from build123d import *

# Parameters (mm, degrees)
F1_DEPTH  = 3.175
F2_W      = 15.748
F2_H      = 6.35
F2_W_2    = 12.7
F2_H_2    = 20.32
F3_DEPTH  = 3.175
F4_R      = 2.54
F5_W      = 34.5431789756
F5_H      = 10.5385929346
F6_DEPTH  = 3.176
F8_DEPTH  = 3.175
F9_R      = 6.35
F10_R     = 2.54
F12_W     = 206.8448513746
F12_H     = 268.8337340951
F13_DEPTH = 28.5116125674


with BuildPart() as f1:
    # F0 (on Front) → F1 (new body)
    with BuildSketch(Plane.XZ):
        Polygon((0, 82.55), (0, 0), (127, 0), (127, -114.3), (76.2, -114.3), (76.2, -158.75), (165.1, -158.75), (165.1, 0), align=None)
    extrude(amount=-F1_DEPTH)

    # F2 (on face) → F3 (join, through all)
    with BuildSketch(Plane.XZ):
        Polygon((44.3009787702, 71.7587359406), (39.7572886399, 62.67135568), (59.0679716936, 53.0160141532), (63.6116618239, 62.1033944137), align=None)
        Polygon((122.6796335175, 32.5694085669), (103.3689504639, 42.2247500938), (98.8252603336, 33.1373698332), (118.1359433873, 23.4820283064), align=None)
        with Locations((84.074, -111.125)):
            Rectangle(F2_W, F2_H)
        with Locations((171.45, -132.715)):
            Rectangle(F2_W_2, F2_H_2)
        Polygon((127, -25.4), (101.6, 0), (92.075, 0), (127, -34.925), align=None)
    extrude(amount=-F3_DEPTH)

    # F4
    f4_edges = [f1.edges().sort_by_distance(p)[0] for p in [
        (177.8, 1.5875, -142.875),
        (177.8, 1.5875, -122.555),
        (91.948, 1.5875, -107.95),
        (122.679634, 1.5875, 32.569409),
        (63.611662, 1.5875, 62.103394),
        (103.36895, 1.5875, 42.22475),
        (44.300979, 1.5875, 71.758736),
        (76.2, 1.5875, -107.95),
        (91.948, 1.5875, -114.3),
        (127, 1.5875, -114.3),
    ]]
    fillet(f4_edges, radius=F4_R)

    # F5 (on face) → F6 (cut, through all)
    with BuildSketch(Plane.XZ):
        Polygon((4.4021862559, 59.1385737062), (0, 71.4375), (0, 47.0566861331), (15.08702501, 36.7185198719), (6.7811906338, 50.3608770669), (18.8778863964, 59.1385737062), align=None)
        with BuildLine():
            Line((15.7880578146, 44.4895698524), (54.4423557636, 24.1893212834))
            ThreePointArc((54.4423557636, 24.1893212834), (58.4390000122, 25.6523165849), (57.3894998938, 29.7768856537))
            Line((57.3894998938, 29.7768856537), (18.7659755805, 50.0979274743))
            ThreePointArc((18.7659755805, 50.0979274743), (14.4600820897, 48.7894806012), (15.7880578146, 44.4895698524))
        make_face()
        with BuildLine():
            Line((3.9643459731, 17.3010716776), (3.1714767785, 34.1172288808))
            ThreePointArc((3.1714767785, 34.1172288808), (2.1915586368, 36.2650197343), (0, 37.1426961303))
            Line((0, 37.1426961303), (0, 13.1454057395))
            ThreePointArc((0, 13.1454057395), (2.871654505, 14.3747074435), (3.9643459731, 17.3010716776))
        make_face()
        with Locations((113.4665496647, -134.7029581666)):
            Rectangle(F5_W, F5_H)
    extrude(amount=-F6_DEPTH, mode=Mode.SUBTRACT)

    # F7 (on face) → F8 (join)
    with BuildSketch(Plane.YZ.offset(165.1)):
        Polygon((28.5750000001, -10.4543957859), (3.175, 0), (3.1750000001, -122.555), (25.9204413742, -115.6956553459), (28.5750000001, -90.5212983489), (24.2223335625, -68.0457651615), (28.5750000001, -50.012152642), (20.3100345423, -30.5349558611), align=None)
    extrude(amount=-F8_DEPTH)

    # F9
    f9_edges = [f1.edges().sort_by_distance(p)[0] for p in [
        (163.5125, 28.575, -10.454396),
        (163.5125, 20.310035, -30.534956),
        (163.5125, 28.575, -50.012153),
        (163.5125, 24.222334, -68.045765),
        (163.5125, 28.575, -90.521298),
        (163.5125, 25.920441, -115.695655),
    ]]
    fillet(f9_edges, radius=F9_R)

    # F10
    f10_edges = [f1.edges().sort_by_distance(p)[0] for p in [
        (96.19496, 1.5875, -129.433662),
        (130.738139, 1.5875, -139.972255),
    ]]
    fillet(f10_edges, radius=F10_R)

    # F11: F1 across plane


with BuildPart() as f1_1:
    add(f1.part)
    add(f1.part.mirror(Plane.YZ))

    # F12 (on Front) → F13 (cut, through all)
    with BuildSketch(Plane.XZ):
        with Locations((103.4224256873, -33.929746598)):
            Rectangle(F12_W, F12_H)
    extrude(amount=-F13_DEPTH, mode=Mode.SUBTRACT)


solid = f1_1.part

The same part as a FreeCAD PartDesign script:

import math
import FreeCAD as App
import Part
import Sketcher

V = App.Vector
Q = App.Units.Quantity


def edges_at(feature, points):
    """Names of the edges that pass closest to the given points."""
    edges = feature.Shape.Edges
    near = lambda p: min(range(len(edges)), key=lambda i: edges[i].distToShape(Part.Vertex(*p))[0])
    return sorted({f"Edge{near(p) + 1}" for p in points})

doc = App.newDocument("Part")
body = doc.addObject("PartDesign::Body", "Body")

# Sketch on XZ plane
sketch1 = body.newObject("Sketcher::SketchObject", "Sketch")
sketch1.AttachmentSupport = (doc.getObject("XZ_Plane"), [""])
sketch1.MapMode = "FlatFace"
sketch1.addGeometry(Part.LineSegment(V(0, 83, 0), V(0, 0, 0)), False)
sketch1.addGeometry(Part.LineSegment(V(0, 0, 0), V(127, 0, 0)), False)
sketch1.addGeometry(Part.LineSegment(V(127, 0, 0), V(127, -114, 0)), False)
sketch1.addGeometry(Part.LineSegment(V(127, -114, 0), V(76, -114, 0)), False)
sketch1.addGeometry(Part.LineSegment(V(76, -114, 0), V(76, -159, 0)), False)
sketch1.addGeometry(Part.LineSegment(V(76, -159, 0), V(165, -159, 0)), False)
sketch1.addGeometry(Part.LineSegment(V(165, -159, 0), V(165, 0, 0)), False)
sketch1.addGeometry(Part.LineSegment(V(165, 0, 0), V(0, 83, 0)), False)
sketch1.addConstraint(Sketcher.Constraint("Coincident", 0, 2, 1, 1))
sketch1.addConstraint(Sketcher.Constraint("Coincident", 1, 2, 2, 1))
sketch1.addConstraint(Sketcher.Constraint("Coincident", 2, 2, 3, 1))
sketch1.addConstraint(Sketcher.Constraint("Coincident", 3, 2, 4, 1))
sketch1.addConstraint(Sketcher.Constraint("Coincident", 4, 2, 5, 1))
sketch1.addConstraint(Sketcher.Constraint("Coincident", 5, 2, 6, 1))
sketch1.addConstraint(Sketcher.Constraint("Coincident", 6, 2, 7, 1))
sketch1.addConstraint(Sketcher.Constraint("Coincident", 7, 2, 0, 1))
sketch1.addConstraint(Sketcher.Constraint("Vertical", 0))
sketch1.addConstraint(Sketcher.Constraint("Horizontal", 1))
sketch1.addConstraint(Sketcher.Constraint("Vertical", 2))
sketch1.addConstraint(Sketcher.Constraint("Horizontal", 3))
sketch1.addConstraint(Sketcher.Constraint("Vertical", 4))
sketch1.addConstraint(Sketcher.Constraint("Horizontal", 5))
sketch1.addConstraint(Sketcher.Constraint("Vertical", 6))
sketch1.addConstraint(Sketcher.Constraint("Coincident", 0, 2, -1, 1))
sketch1.addConstraint(Sketcher.Constraint("PointOnObject", 6, 2, -1))
sketch1.addConstraint(Sketcher.Constraint("DistanceX", 1, 1, 1, 2, Q("5 in")))
sketch1.addConstraint(Sketcher.Constraint("DistanceX", 3, 2, 3, 1, Q("2 in")))
sketch1.addConstraint(Sketcher.Constraint("DistanceX", 5, 1, 5, 2, Q("3.5 in")))
sketch1.addConstraint(Sketcher.Constraint("DistanceY", 2, 2, 2, 1, Q("4.5 in")))
sketch1.addConstraint(Sketcher.Constraint("DistanceY", 0, 2, 0, 1, Q("3.25 in")))
sketch1.addConstraint(Sketcher.Constraint("DistanceY", 4, 2, 4, 1, Q("1.75 in")))
pad1 = body.newObject("PartDesign::Pad", "Pad")
pad1.Profile = sketch1
pad1.Length = Q("0.125 in")
pad1.Reversed = True

# Sketch on XZ plane
sketch2 = body.newObject("Sketcher::SketchObject", "Sketch001")
sketch2.AttachmentSupport = (doc.getObject("XZ_Plane"), [""])
sketch2.MapMode = "FlatFace"
sketch2.addGeometry(Part.LineSegment(V(44, 72, 0), V(40, 63, 0)), False)
sketch2.addGeometry(Part.LineSegment(V(40, 63, 0), V(59, 53, 0)), False)
sketch2.addGeometry(Part.LineSegment(V(59, 53, 0), V(64, 62, 0)), False)
sketch2.addGeometry(Part.LineSegment(V(64, 62, 0), V(44, 72, 0)), False)
sketch2.addGeometry(Part.LineSegment(V(123, 33, 0), V(103, 42, 0)), False)
sketch2.addGeometry(Part.LineSegment(V(103, 42, 0), V(99, 33, 0)), False)
sketch2.addGeometry(Part.LineSegment(V(99, 33, 0), V(118, 23, 0)), False)
sketch2.addGeometry(Part.LineSegment(V(118, 23, 0), V(123, 33, 0)), False)
sketch2.addGeometry(Part.LineSegment(V(76, -108, 0), V(76, -114, 0)), False)
sketch2.addGeometry(Part.LineSegment(V(76, -114, 0), V(92, -114, 0)), False)
sketch2.addGeometry(Part.LineSegment(V(92, -114, 0), V(92, -108, 0)), False)
sketch2.addGeometry(Part.LineSegment(V(92, -108, 0), V(76, -108, 0)), False)
sketch2.addGeometry(Part.LineSegment(V(165, -123, 0), V(165, -143, 0)), False)
sketch2.addGeometry(Part.LineSegment(V(165, -143, 0), V(178, -143, 0)), False)
sketch2.addGeometry(Part.LineSegment(V(178, -143, 0), V(178, -123, 0)), False)
sketch2.addGeometry(Part.LineSegment(V(178, -123, 0), V(165, -123, 0)), False)
sketch2.addGeometry(Part.LineSegment(V(127, -25, 0), V(102, 0, 0)), False)
sketch2.addGeometry(Part.LineSegment(V(102, 0, 0), V(92, 0, 0)), False)
sketch2.addGeometry(Part.LineSegment(V(92, 0, 0), V(127, -35, 0)), False)
sketch2.addGeometry(Part.LineSegment(V(127, -35, 0), V(127, -25, 0)), False)
sketch2.addConstraint(Sketcher.Constraint("Coincident", 0, 2, 1, 1))
sketch2.addConstraint(Sketcher.Constraint("Coincident", 1, 2, 2, 1))
sketch2.addConstraint(Sketcher.Constraint("Coincident", 2, 2, 3, 1))
sketch2.addConstraint(Sketcher.Constraint("Coincident", 3, 2, 0, 1))
sketch2.addConstraint(Sketcher.Constraint("Coincident", 4, 2, 5, 1))
sketch2.addConstraint(Sketcher.Constraint("Coincident", 5, 2, 6, 1))
sketch2.addConstraint(Sketcher.Constraint("Coincident", 6, 2, 7, 1))
sketch2.addConstraint(Sketcher.Constraint("Coincident", 7, 2, 4, 1))
sketch2.addConstraint(Sketcher.Constraint("Coincident", 8, 2, 9, 1))
sketch2.addConstraint(Sketcher.Constraint("Coincident", 9, 2, 10, 1))
sketch2.addConstraint(Sketcher.Constraint("Coincident", 10, 2, 11, 1))
sketch2.addConstraint(Sketcher.Constraint("Coincident", 11, 2, 8, 1))
sketch2.addConstraint(Sketcher.Constraint("Coincident", 12, 2, 13, 1))
sketch2.addConstraint(Sketcher.Constraint("Coincident", 13, 2, 14, 1))
sketch2.addConstraint(Sketcher.Constraint("Coincident", 14, 2, 15, 1))
sketch2.addConstraint(Sketcher.Constraint("Coincident", 15, 2, 12, 1))
sketch2.addConstraint(Sketcher.Constraint("Coincident", 16, 2, 17, 1))
sketch2.addConstraint(Sketcher.Constraint("Coincident", 17, 2, 18, 1))
sketch2.addConstraint(Sketcher.Constraint("Coincident", 18, 2, 19, 1))
sketch2.addConstraint(Sketcher.Constraint("Coincident", 19, 2, 16, 1))
sketch2.addConstraint(Sketcher.Constraint("Vertical", 8))
sketch2.addConstraint(Sketcher.Constraint("Horizontal", 9))
sketch2.addConstraint(Sketcher.Constraint("Vertical", 10))
sketch2.addConstraint(Sketcher.Constraint("Horizontal", 11))
sketch2.addConstraint(Sketcher.Constraint("Vertical", 12))
sketch2.addConstraint(Sketcher.Constraint("Horizontal", 13))
sketch2.addConstraint(Sketcher.Constraint("Vertical", 14))
sketch2.addConstraint(Sketcher.Constraint("Horizontal", 15))
sketch2.addConstraint(Sketcher.Constraint("Horizontal", 17))
sketch2.addConstraint(Sketcher.Constraint("Vertical", 19))
sketch2.addConstraint(Sketcher.Constraint("PointOnObject", 16, 2, -1))
sketch2.addConstraint(Sketcher.Constraint("Perpendicular", 0, 1))
sketch2.addConstraint(Sketcher.Constraint("Perpendicular", 1, 2))
sketch2.addConstraint(Sketcher.Constraint("Perpendicular", 2, 3))
sketch2.addConstraint(Sketcher.Constraint("Parallel", 3, 4))
sketch2.addConstraint(Sketcher.Constraint("Perpendicular", 4, 5))
sketch2.addConstraint(Sketcher.Constraint("Perpendicular", 5, 6))
sketch2.addConstraint(Sketcher.Constraint("Perpendicular", 6, 7))
sketch2.addConstraint(Sketcher.Constraint("Parallel", 16, 18))
sketch2.addConstraint(Sketcher.Constraint("Equal", 17, 19))
sketch2.addConstraint(Sketcher.Constraint("Equal", 3, 4))
sketch2.addConstraint(Sketcher.Constraint("Equal", 2, 5))
sketch2.addConstraint(Sketcher.Constraint("DistanceX", 13, 1, 13, 2, Q("0.5 in")))
sketch2.addConstraint(Sketcher.Constraint("DistanceY", 12, 2, 12, 1, Q("0.8 in")))
sketch2.addConstraint(Sketcher.Constraint("DistanceX", -1, 1, 8, 2, Q("3 in")))
sketch2.addConstraint(Sketcher.Constraint("DistanceX", -1, 1, 13, 2, Q("7 in")))
sketch2.addConstraint(Sketcher.Constraint("DistanceX", -1, 1, 16, 2, Q("4 in")))
sketch2.addConstraint(Sketcher.Constraint("DistanceX", -1, 1, 18, 2, Q("5 in")))
sketch2.addConstraint(Sketcher.Constraint("Distance", 0, Q("0.4 in")))
sketch2.addConstraint(Sketcher.Constraint("DistanceX", 9, 1, 9, 2, Q("0.62 in")))
sketch2.addConstraint(Sketcher.Constraint("DistanceY", 8, 2, 8, 1, Q("0.25 in")))
sketch2.addConstraint(Sketcher.Constraint("DistanceY", 8, 2, -1, 1, Q("4.5 in")))
sketch2.addConstraint(Sketcher.Constraint("Distance", 1, Q("0.85 in")))
sketch2.addConstraint(Sketcher.Constraint("DistanceX", 17, 2, 17, 1, Q("0.375 in")))
sketch2.addConstraint(Sketcher.Constraint("DistanceY", 12, 2, -1, 1, Q("5.625 in")))
sketch2.addConstraint(Sketcher.Constraint("DistanceX", 2, 2, 5, 2, Q("35.213599 mm")))
sketch2.addConstraint(Sketcher.Constraint("DistanceX", -1, 1, 0, 2, Q("39.757289 mm")))
sketch2.addConstraint(Sketcher.Constraint("DistanceX", -1, 1, 1, 2, Q("59.067972 mm")))
sketch2.addConstraint(Sketcher.Constraint("DistanceY", -1, 1, 4, 2, Q("42.22475 mm")))
sketch2.addConstraint(Sketcher.Constraint("DistanceY", -1, 1, 0, 2, Q("62.671356 mm")))
pad2 = body.newObject("PartDesign::Pad", "Pad001")
pad2.Profile = sketch2
pad2.Length = Q("0.125 in")
pad2.Reversed = True
doc.recompute()

fillet = body.newObject("PartDesign::Fillet", "Fillet")
fillet.Base = (pad2, edges_at(pad2, [
    (177.8, 1.587, -142.875),
    (177.8, 1.587, -122.555),
    (91.948, 1.587, -107.95),
    (122.68, 1.587, 32.569),
    (63.612, 1.587, 62.103),
    (103.369, 1.587, 42.225),
    (44.301, 1.587, 71.759),
    (76.2, 1.587, -107.95),
    (91.948, 1.587, -114.3),
    (127, 1.587, -114.3),
]))
fillet.Radius = Q("0.1 in")

# Sketch on XZ plane
sketch3 = body.newObject("Sketcher::SketchObject", "Sketch002")
sketch3.AttachmentSupport = (doc.getObject("XZ_Plane"), [""])
sketch3.MapMode = "FlatFace"
sketch3.addGeometry(Part.LineSegment(V(4.4, 59.1, 0), V(0, 71.4, 0)), False)
sketch3.addGeometry(Part.LineSegment(V(0, 71.4, 0), V(0, 47.1, 0)), False)
sketch3.addGeometry(Part.LineSegment(V(0, 47.1, 0), V(15.1, 36.7, 0)), False)
sketch3.addGeometry(Part.LineSegment(V(15.1, 36.7, 0), V(6.8, 50.4, 0)), False)
sketch3.addGeometry(Part.LineSegment(V(6.8, 50.4, 0), V(18.9, 59.1, 0)), False)
sketch3.addGeometry(Part.LineSegment(V(18.9, 59.1, 0), V(4.4, 59.1, 0)), False)
sketch3.addGeometry(Part.LineSegment(V(15.8, 44.5, 0), V(54.4, 24.2, 0)), False)
sketch3.addGeometry(Part.ArcOfCircle(Part.Circle(V(55.6, 27.1, 0), V(0, 0, 1), 3.2), math.radians(-112), math.radians(56)), False)
sketch3.addGeometry(Part.LineSegment(V(57.4, 29.8, 0), V(18.8, 50.1, 0)), False)
sketch3.addGeometry(Part.ArcOfCircle(Part.Circle(V(17.3, 47.3, 0), V(0, 0, 1), 3.2), math.radians(62), math.radians(242)), False)
sketch3.addGeometry(Part.LineSegment(V(4, 17.3, 0), V(3.2, 34.1, 0)), False)
sketch3.addGeometry(Part.ArcOfCircle(Part.Circle(V(0, 34, 0), V(0, 0, 1), 3.2), math.radians(3), math.radians(90)), False)
sketch3.addGeometry(Part.LineSegment(V(0, 37.1, 0), V(0, 13.1, 0)), False)
sketch3.addGeometry(Part.ArcOfCircle(Part.Circle(V(0, 17.1, 0), V(0, 0, 1), 4), math.radians(-90), math.radians(3)), False)
sketch3.addGeometry(Part.LineSegment(V(96.2, -129.4, 0), V(96.2, -140, 0)), False)
sketch3.addGeometry(Part.LineSegment(V(96.2, -140, 0), V(130.7, -140, 0)), False)
sketch3.addGeometry(Part.LineSegment(V(130.7, -140, 0), V(130.7, -129.4, 0)), False)
sketch3.addGeometry(Part.LineSegment(V(130.7, -129.4, 0), V(96.2, -129.4, 0)), False)
sketch3.addConstraint(Sketcher.Constraint("Coincident", 0, 2, 1, 1))
sketch3.addConstraint(Sketcher.Constraint("Coincident", 1, 2, 2, 1))
sketch3.addConstraint(Sketcher.Constraint("Coincident", 2, 2, 3, 1))
sketch3.addConstraint(Sketcher.Constraint("Coincident", 3, 2, 4, 1))
sketch3.addConstraint(Sketcher.Constraint("Coincident", 4, 2, 5, 1))
sketch3.addConstraint(Sketcher.Constraint("Coincident", 5, 2, 0, 1))
sketch3.addConstraint(Sketcher.Constraint("Coincident", 6, 2, 7, 1))
sketch3.addConstraint(Sketcher.Constraint("Coincident", 7, 2, 8, 1))
sketch3.addConstraint(Sketcher.Constraint("Coincident", 8, 2, 9, 1))
sketch3.addConstraint(Sketcher.Constraint("Tangent", 9, 2, 6, 1))
sketch3.addConstraint(Sketcher.Constraint("Tangent", 10, 2, 11, 1))
sketch3.addConstraint(Sketcher.Constraint("Coincident", 11, 2, 12, 1))
sketch3.addConstraint(Sketcher.Constraint("Coincident", 12, 2, 13, 1))
sketch3.addConstraint(Sketcher.Constraint("Tangent", 13, 2, 10, 1))
sketch3.addConstraint(Sketcher.Constraint("Coincident", 14, 2, 15, 1))
sketch3.addConstraint(Sketcher.Constraint("Coincident", 15, 2, 16, 1))
sketch3.addConstraint(Sketcher.Constraint("Coincident", 16, 2, 17, 1))
sketch3.addConstraint(Sketcher.Constraint("Coincident", 17, 2, 14, 1))
sketch3.addConstraint(Sketcher.Constraint("Vertical", 1))
sketch3.addConstraint(Sketcher.Constraint("Horizontal", 5))
sketch3.addConstraint(Sketcher.Constraint("Vertical", 12))
sketch3.addConstraint(Sketcher.Constraint("Vertical", 14))
sketch3.addConstraint(Sketcher.Constraint("Horizontal", 15))
sketch3.addConstraint(Sketcher.Constraint("Vertical", 16))
sketch3.addConstraint(Sketcher.Constraint("Horizontal", 17))
sketch3.addConstraint(Sketcher.Constraint("Equal", 7, 9))
sketch3.addConstraint(Sketcher.Constraint("Equal", 9, 11))
sketch3.addConstraint(Sketcher.Constraint("PointOnObject", 11, 3, -2))
sketch3.addConstraint(Sketcher.Constraint("PointOnObject", 13, 3, -2))
sketch3.addConstraint(Sketcher.Constraint("PointOnObject", 0, 2, -2))
sketch3.addConstraint(Sketcher.Constraint("PointOnObject", 11, 2, -2))
sketch3.addConstraint(Sketcher.Constraint("Radius", 7, Q("0.125 in")))
sketch3.addConstraint(Sketcher.Constraint("Radius", 13, Q("0.15625 in")))
sketch3.addConstraint(Sketcher.Constraint("DistanceY", -1, 1, 0, 2, Q("2.8125 in")))
sketch3.addConstraint(Sketcher.Constraint("DistanceX", 5, 2, 5, 1, Q("14.4757 mm")))
sketch3.addConstraint(Sketcher.Constraint("DistanceX", -1, 1, 6, 2, Q("2.1433998 in")))
sketch3.addConstraint(Sketcher.Constraint("DistanceY", 11, 3, 2, 2, Q("0.1083001 in")))
sketch3.addConstraint(Sketcher.Constraint("DistanceX", 15, 1, 15, 2, Q("34.543179 mm")))
sketch3.addConstraint(Sketcher.Constraint("DistanceY", 12, 2, 12, 1, Q("23.99729 mm")))
sketch3.addConstraint(Sketcher.Constraint("DistanceX", -1, 1, 7, 2, Q("57.3895 mm")))
sketch3.addConstraint(Sketcher.Constraint("DistanceX", 3, 2, 9, 3, Q("10.483099 mm")))
sketch3.addConstraint(Sketcher.Constraint("DistanceY", 6, 2, 2, 2, Q("12.529199 mm")))
sketch3.addConstraint(Sketcher.Constraint("Distance", 2, Q("18.289232 mm")))
sketch3.addConstraint(Sketcher.Constraint("Distance", 6, Q("43.660678 mm")))
sketch3.addConstraint(Sketcher.Constraint("DistanceY", 1, 2, 1, 1, Q("24.380814 mm")))
sketch3.addConstraint(Sketcher.Constraint("DistanceY", 14, 2, 14, 1, Q("10.538593 mm")))
sketch3.addConstraint(Sketcher.Constraint("DistanceY", -1, 1, 7, 3, Q("27.133549 mm")))
sketch3.addConstraint(Sketcher.Constraint("DistanceX", -1, 1, 9, 3, Q("17.26429 mm")))
sketch3.addConstraint(Sketcher.Constraint("DistanceY", -1, 1, 2, 2, Q("36.71852 mm")))
sketch3.addConstraint(Sketcher.Constraint("DistanceX", -1, 1, 14, 2, Q("96.19496 mm")))
sketch3.addConstraint(Sketcher.Constraint("DistanceY", 16, 2, -1, 1, Q("129.433662 mm")))
sketch3.addConstraint(Sketcher.Constraint("DistanceY", 1, 2, 3, 2, Q("3.304191 mm")))
sketch3.addConstraint(Sketcher.Constraint("DistanceX", 2, 2, 4, 2, Q("3.790861 mm")))
sketch3.addConstraint(Sketcher.Constraint("DistanceY", 7, 2, 4, 2, Q("29.361688 mm")))
sketch3.addConstraint(Sketcher.Constraint("DistanceY", 9, 3, 8, 2, Q("2.797421 mm")))
pocket1 = body.newObject("PartDesign::Pocket", "Pocket")
pocket1.Profile = sketch3
pocket1.Type = "ThroughAll"

# Sketch on YZ plane
sketch4 = body.newObject("Sketcher::SketchObject", "Sketch003")
sketch4.AttachmentSupport = (doc.getObject("YZ_Plane"), [""])
sketch4.MapMode = "FlatFace"
sketch4.AttachmentOffset = App.Placement(V(0, 0, 6.5 * 25.4), App.Rotation())
sketch4.addGeometry(Part.LineSegment(V(29, -10, 0), V(3, 0, 0)), False)
sketch4.addGeometry(Part.LineSegment(V(3, 0, 0), V(3, -123, 0)), False)
sketch4.addGeometry(Part.LineSegment(V(3, -123, 0), V(26, -116, 0)), False)
sketch4.addGeometry(Part.LineSegment(V(26, -116, 0), V(29, -91, 0)), False)
sketch4.addGeometry(Part.LineSegment(V(29, -91, 0), V(24, -68, 0)), False)
sketch4.addGeometry(Part.LineSegment(V(24, -68, 0), V(29, -50, 0)), False)
sketch4.addGeometry(Part.LineSegment(V(29, -50, 0), V(20, -31, 0)), False)
sketch4.addGeometry(Part.LineSegment(V(20, -31, 0), V(29, -10, 0)), False)
sketch4.addConstraint(Sketcher.Constraint("Coincident", 0, 2, 1, 1))
sketch4.addConstraint(Sketcher.Constraint("Coincident", 1, 2, 2, 1))
sketch4.addConstraint(Sketcher.Constraint("Coincident", 2, 2, 3, 1))
sketch4.addConstraint(Sketcher.Constraint("Coincident", 3, 2, 4, 1))
sketch4.addConstraint(Sketcher.Constraint("Coincident", 4, 2, 5, 1))
sketch4.addConstraint(Sketcher.Constraint("Coincident", 5, 2, 6, 1))
sketch4.addConstraint(Sketcher.Constraint("Coincident", 6, 2, 7, 1))
sketch4.addConstraint(Sketcher.Constraint("Coincident", 7, 2, 0, 1))
sketch4.addConstraint(Sketcher.Constraint("Vertical", 1))
sketch4.addConstraint(Sketcher.Constraint("PointOnObject", 0, 2, -1))
sketch4.addConstraint(Sketcher.Constraint("Perpendicular", 0, 7))
sketch4.addConstraint(Sketcher.Constraint("Vertical", 3, 2, 5, 2))
sketch4.addConstraint(Sketcher.Constraint("Vertical", 5, 2, 7, 2))
sketch4.addConstraint(Sketcher.Constraint("DistanceX", 1, 2, 3, 2, Q("1 in")))
sketch4.addConstraint(Sketcher.Constraint("DistanceY", 1, 2, 1, 1, Q("4.825 in")))
sketch4.addConstraint(Sketcher.Constraint("DistanceX", -1, 1, 0, 2, Q("0.125 in")))
sketch4.addConstraint(Sketcher.Constraint("DistanceY", 3, 2, -1, 1, Q("90.521298 mm")))
sketch4.addConstraint(Sketcher.Constraint("DistanceX", 6, 2, 4, 2, Q("3.912299 mm")))
sketch4.addConstraint(Sketcher.Constraint("DistanceY", 2, 2, 6, 2, Q("85.160699 mm")))
sketch4.addConstraint(Sketcher.Constraint("Distance", 7, Q("21.714938 mm")))
sketch4.addConstraint(Sketcher.Constraint("DistanceX", -1, 1, 2, 2, Q("25.920441 mm")))
sketch4.addConstraint(Sketcher.Constraint("DistanceY", 2, 2, 4, 2, Q("47.64989 mm")))
sketch4.addConstraint(Sketcher.Constraint("DistanceY", 6, 2, 7, 2, Q("20.08056 mm")))
sketch4.addConstraint(Sketcher.Constraint("Distance", 5, Q("18.551466 mm")))
pad3 = body.newObject("PartDesign::Pad", "Pad002")
pad3.Profile = sketch4
pad3.Length = Q("0.125 in")
pad3.Reversed = True
doc.recompute()

fillet2 = body.newObject("PartDesign::Fillet", "Fillet001")
fillet2.Base = (pad3, edges_at(pad3, [
    (163.512, 28.575, -10.454),
    (163.512, 20.31, -30.535),
    (163.512, 28.575, -50.012),
    (163.512, 24.222, -68.046),
    (163.512, 28.575, -90.521),
    (163.512, 25.92, -115.696),
]))
fillet2.Radius = Q("0.25 in")
doc.recompute()

fillet3 = body.newObject("PartDesign::Fillet", "Fillet002")
fillet3.Base = (fillet2, edges_at(fillet2, [(96.195, 1.587, -129.434), (130.738, 1.587, -139.972)]))
fillet3.Radius = Q("0.1 in")
body2 = doc.addObject("PartDesign::Body", "Body001")
doc.recompute()

body2.BaseFeature = body
doc.recompute()

mirroring = doc.addObject("Part::Mirroring", "Mirroring")
mirroring.Source = body
mirroring.Base = V(0, 0, 0)
mirroring.Normal = V(1, 0, 0)
body3 = doc.addObject("PartDesign::Body", "Body002")
body3.BaseFeature = mirroring
boolean = body2.newObject("PartDesign::Boolean", "Boolean")
boolean.Type = "Fuse"
boolean.addObjects([body3])
doc.recompute()

# Sketch on XZ plane
sketch5 = body2.newObject("Sketcher::SketchObject", "Sketch004")
sketch5.AttachmentSupport = (doc.getObject("XZ_Plane001"), [""])
sketch5.MapMode = "FlatFace"
sketch5.addGeometry(Part.LineSegment(V(0, 100, 0), V(0, -168, 0)), False)
sketch5.addGeometry(Part.LineSegment(V(0, -168, 0), V(207, -168, 0)), False)
sketch5.addGeometry(Part.LineSegment(V(207, -168, 0), V(207, 100, 0)), False)
sketch5.addGeometry(Part.LineSegment(V(207, 100, 0), V(0, 100, 0)), False)
sketch5.addConstraint(Sketcher.Constraint("Coincident", 0, 2, 1, 1))
sketch5.addConstraint(Sketcher.Constraint("Coincident", 1, 2, 2, 1))
sketch5.addConstraint(Sketcher.Constraint("Coincident", 2, 2, 3, 1))
sketch5.addConstraint(Sketcher.Constraint("Coincident", 3, 2, 0, 1))
sketch5.addConstraint(Sketcher.Constraint("Vertical", 0))
sketch5.addConstraint(Sketcher.Constraint("Horizontal", 1))
sketch5.addConstraint(Sketcher.Constraint("Vertical", 2))
sketch5.addConstraint(Sketcher.Constraint("Horizontal", 3))
sketch5.addConstraint(Sketcher.Constraint("PointOnObject", 0, 2, -2))
sketch5.addConstraint(Sketcher.Constraint("DistanceX", 1, 1, 1, 2, Q("206.844851 mm")))
sketch5.addConstraint(Sketcher.Constraint("DistanceY", 0, 2, 0, 1, Q("268.833734 mm")))
sketch5.addConstraint(Sketcher.Constraint("DistanceY", -1, 1, 2, 2, Q("100.48712 mm")))
pocket2 = body2.newObject("PartDesign::Pocket", "Pocket001")
pocket2.Profile = sketch5
pocket2.Type = "ThroughAll"
mirroring.Visibility = False

doc.recompute()
